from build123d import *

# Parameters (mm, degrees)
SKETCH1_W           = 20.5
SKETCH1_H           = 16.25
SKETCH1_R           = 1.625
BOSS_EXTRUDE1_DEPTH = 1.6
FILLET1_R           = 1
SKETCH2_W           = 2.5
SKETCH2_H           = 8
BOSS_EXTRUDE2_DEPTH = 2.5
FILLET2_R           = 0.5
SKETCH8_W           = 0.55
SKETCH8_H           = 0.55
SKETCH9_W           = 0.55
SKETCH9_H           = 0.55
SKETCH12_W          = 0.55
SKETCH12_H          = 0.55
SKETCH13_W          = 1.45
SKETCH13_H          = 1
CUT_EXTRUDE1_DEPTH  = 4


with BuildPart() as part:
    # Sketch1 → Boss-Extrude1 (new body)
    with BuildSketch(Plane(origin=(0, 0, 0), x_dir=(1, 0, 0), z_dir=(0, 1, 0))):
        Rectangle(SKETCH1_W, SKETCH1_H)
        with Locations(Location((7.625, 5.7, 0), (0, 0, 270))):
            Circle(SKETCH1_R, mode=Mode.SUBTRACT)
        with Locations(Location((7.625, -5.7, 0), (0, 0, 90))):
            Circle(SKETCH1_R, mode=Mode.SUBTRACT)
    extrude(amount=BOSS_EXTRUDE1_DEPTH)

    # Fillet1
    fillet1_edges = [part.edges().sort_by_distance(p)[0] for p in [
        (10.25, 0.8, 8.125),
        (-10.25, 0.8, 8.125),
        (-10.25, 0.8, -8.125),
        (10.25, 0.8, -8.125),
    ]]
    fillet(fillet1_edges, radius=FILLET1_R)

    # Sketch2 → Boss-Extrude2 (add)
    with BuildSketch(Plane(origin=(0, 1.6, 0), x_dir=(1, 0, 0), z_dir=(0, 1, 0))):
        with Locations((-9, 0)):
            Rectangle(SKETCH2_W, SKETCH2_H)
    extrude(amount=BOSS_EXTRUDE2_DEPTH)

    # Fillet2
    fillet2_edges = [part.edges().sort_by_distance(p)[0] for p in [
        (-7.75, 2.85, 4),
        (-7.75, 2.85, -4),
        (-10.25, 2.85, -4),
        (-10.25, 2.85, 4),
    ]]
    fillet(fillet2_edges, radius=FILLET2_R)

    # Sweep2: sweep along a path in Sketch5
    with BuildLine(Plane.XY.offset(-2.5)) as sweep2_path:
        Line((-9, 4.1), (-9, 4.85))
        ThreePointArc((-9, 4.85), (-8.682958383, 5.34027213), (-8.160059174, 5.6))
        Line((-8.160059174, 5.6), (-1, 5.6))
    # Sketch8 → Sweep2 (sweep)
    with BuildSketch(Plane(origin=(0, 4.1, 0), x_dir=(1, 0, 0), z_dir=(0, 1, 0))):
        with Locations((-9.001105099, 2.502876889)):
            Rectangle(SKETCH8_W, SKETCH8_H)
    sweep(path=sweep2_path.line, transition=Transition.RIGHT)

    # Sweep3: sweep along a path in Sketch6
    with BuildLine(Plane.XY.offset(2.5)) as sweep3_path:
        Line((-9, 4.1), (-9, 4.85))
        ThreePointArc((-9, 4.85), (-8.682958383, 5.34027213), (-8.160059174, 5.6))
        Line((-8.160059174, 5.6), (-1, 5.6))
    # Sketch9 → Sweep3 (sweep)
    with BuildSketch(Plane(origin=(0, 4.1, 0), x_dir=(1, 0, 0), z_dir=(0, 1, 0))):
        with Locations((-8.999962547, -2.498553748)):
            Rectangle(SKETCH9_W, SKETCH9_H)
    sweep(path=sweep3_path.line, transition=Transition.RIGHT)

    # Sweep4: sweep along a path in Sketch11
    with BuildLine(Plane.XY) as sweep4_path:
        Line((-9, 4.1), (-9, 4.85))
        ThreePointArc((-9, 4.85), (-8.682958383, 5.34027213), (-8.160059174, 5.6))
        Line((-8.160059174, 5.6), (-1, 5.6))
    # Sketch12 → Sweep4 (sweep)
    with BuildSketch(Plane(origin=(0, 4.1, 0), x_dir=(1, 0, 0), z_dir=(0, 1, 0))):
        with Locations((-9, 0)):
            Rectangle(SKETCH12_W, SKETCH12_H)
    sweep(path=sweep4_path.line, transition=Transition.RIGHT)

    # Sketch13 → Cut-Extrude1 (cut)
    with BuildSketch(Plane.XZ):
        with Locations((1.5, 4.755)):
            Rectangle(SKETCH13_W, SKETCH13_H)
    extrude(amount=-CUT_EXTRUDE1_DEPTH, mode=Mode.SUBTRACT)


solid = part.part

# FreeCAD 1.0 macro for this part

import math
import FreeCAD as App
import Part
import Sketcher

V = App.Vector


def edges_at(feature, points):
    """Names of the edges that pass closest to the given points."""
    edges = feature.Shape.Edges
    near = lambda p: min(range(len(edges)), key=lambda i: edges[i].distToShape(Part.Vertex(*p))[0])
    return sorted({f"Edge{near(p) + 1}" for p in points})


def add_polygon(sketch, points):
    """Adds a closed chain of lines whose ends are joined by coincident constraints."""
    first, n = sketch.GeometryCount, len(points)
    for a, b in zip(points, points[1:] + points[:1]):
        sketch.addGeometry(Part.LineSegment(App.Vector(*a, 0), App.Vector(*b, 0)), False)
    for i in range(n):
        sketch.addConstraint(Sketcher.Constraint("Coincident", first + i, 2, first + (i + 1) % n, 1))

doc = App.newDocument("Part")
body = doc.addObject("PartDesign::Body", "Body")

# Sketch on XZ plane
sketch1 = body.newObject("Sketcher::SketchObject", "Sketch")
sketch1.AttachmentSupport = (doc.getObject("XZ_Plane"), [""])
sketch1.MapMode = "FlatFace"
add_polygon(sketch1, [(-10.2, -8.1), (-10.2, 8.1), (10.2, 8.1), (10.2, -8.1)])  # lines 0-3
sketch1.addGeometry(Part.Circle(V(7.6, 5.7, 0), V(0, 0, 1), 1.6), False)  # 4
sketch1.addGeometry(Part.Circle(V(7.6, -5.7, 0), V(0, 0, 1), 1.6), False)  # 5
sketch1.addConstraint([
    Sketcher.Constraint("Vertical", 0),
    Sketcher.Constraint("Horizontal", 1),
    Sketcher.Constraint("Vertical", 2),
    Sketcher.Constraint("Horizontal", 3),
    Sketcher.Constraint("Equal", 4, 5),
    Sketcher.Constraint("Symmetric", 0, 2, 2, 2, -1, 1),
    Sketcher.Constraint("Symmetric", 4, 3, 5, 3, -1),
    Sketcher.Constraint("Diameter", 4, 3.25),
    Sketcher.Constraint("DistanceX", 1, 1, 1, 2, 20.5),
    Sketcher.Constraint("DistanceY", 0, 1, 0, 2, 16.25),
    Sketcher.Constraint("DistanceY", -1, 1, 4, 3, 5.7),
    Sketcher.Constraint("DistanceX", -1, 1, 4, 3, 7.625),
])
pad1 = body.newObject("PartDesign::Pad", "Pad")
pad1.Profile = sketch1
pad1.Length = 1.6
pad1.Reversed = True
doc.recompute()

fillet = body.newObject("PartDesign::Fillet", "Fillet")
fillet.Base = (pad1, edges_at(pad1, [
    (10.25, 0.8, 8.125),
    (-10.25, 0.8, 8.125),
    (-10.25, 0.8, -8.125),
    (10.25, 0.8, -8.125),
]))
fillet.Radius = 1

# Sketch on XZ plane
sketch2 = body.newObject("Sketcher::SketchObject", "Sketch001")
sketch2.AttachmentSupport = (doc.getObject("XZ_Plane"), [""])
sketch2.MapMode = "FlatFace"
sketch2.AttachmentOffset = App.Placement(V(0, 0, -1.6), App.Rotation())
add_polygon(sketch2, [(-10.2, -4), (-10.2, 4), (-7.8, 4), (-7.8, -4)])  # lines 0-3
sketch2.addConstraint([
    Sketcher.Constraint("Vertical", 0),
    Sketcher.Constraint("Horizontal", 1),
    Sketcher.Constraint("Vertical", 2),
    Sketcher.Constraint("Horizontal", 3),
    Sketcher.Constraint("DistanceY", 0, 1, 0, 2, 8.0),
    Sketcher.Constraint("DistanceX", 1, 1, 1, 2, 2.5),
    Sketcher.Constraint("DistanceY", -1, 1, 0, 2, 4.0),
    Sketcher.Constraint("DistanceX", 0, 2, -1, 1, 10.25),
])
pad2 = body.newObject("PartDesign::Pad", "Pad001")
pad2.Profile = sketch2
pad2.Length = 2.5
pad2.Reversed = True
doc.recompute()

fillet2 = body.newObject("PartDesign::Fillet", "Fillet001")
fillet2.Base = (pad2, edges_at(pad2, [
    (-7.75, 2.85, 4),
    (-7.75, 2.85, -4),
    (-10.25, 2.85, -4),
    (-10.25, 2.85, 4),
]))
fillet2.Radius = 0.5

# Sketch on XZ plane
sketch3 = body.newObject("Sketcher::SketchObject", "Sketch002")
sketch3.AttachmentSupport = (doc.getObject("XZ_Plane"), [""])
sketch3.MapMode = "FlatFace"
sketch3.AttachmentOffset = App.Placement(V(0, 0, -4.1), App.Rotation())
add_polygon(sketch3, [(-9.3, -2.8), (-9.3, -2.2), (-8.7, -2.2), (-8.7, -2.8)])  # lines 0-3
sketch3.addConstraint([
    Sketcher.Constraint("Vertical", 0),
    Sketcher.Constraint("Horizontal", 1),
    Sketcher.Constraint("Vertical", 2),
    Sketcher.Constraint("Horizontal", 3),
    Sketcher.Constraint("Equal", 3, 0),
    Sketcher.Constraint("DistanceX", 1, 1, 1, 2, 0.55),
    Sketcher.Constraint("DistanceX", 0, 2, -1, 1, 9.276105),
    Sketcher.Constraint("DistanceY", 0, 2, -1, 1, 2.227877),
])

# Sketch on XY plane
sketch4 = body.newObject("Sketcher::SketchObject", "Sketch003")
sketch4.AttachmentSupport = (doc.getObject("XY_Plane"), [""])
sketch4.MapMode = "FlatFace"
sketch4.AttachmentOffset = App.Placement(V(0, 0, -2.5), App.Rotation())
sketch4.addGeometry([
    Part.LineSegment(V(-9, 4.1, 0), V(-9, 4.8, 0)),
    Part.ArcOfCircle(Part.Circle(V(-7.9, 4.5, 0), V(0, 0, 1), 1.1), math.radians(101), math.radians(162)),
    Part.LineSegment(V(-8.2, 5.6, 0), V(-1, 5.6, 0)),
], False)
sketch4.addConstraint([
    Sketcher.Constraint("Coincident", 0, 2, 1, 2),
    Sketcher.Constraint("Coincident", 1, 1, 2, 1),
    Sketcher.Constraint("Vertical", 0),
    Sketcher.Constraint("Horizontal", 2),
    Sketcher.Constraint("DistanceX", 0, 1, -1, 1, 9.0),
    Sketcher.Constraint("DistanceX", 2, 2, -1, 1, 1.0),
    Sketcher.Constraint("DistanceY", 0, 1, 0, 2, 0.75),
    Sketcher.Constraint("DistanceY", -1, 1, 0, 1, 4.1),
    Sketcher.Constraint("DistanceY", -1, 1, 1, 1, 5.6),
    Sketcher.Constraint("Radius", 1, 1.102907),
    Sketcher.Constraint("DistanceX", 2, 1, 2, 2, 7.160059),
])
doc.recompute()

additivepipe = body.newObject("PartDesign::AdditivePipe", "AdditivePipe")
additivepipe.Profile = sketch3
additivepipe.Spine = (sketch4, ["Edge1", "Edge2", "Edge3"])
additivepipe.Transition = "Right corner"

# Sketch on XZ plane
sketch5 = body.newObject("Sketcher::SketchObject", "Sketch004")
sketch5.AttachmentSupport = (doc.getObject("XZ_Plane"), [""])
sketch5.MapMode = "FlatFace"
sketch5.AttachmentOffset = App.Placement(V(0, 0, -4.1), App.Rotation())
add_polygon(sketch5, [(-9.3, 2.2), (-9.3, 2.8), (-8.7, 2.8), (-8.7, 2.2)])  # lines 0-3
sketch5.addConstraint([
    Sketcher.Constraint("Vertical", 0),
    Sketcher.Constraint("Horizontal", 1),
    Sketcher.Constraint("Vertical", 2),
    Sketcher.Constraint("Horizontal", 3),
    Sketcher.Constraint("Equal", 3, 0),
    Sketcher.Constraint("DistanceX", 1, 1, 1, 2, 0.55),
    Sketcher.Constraint("DistanceX", 0, 2, -1, 1, 9.274963),
    Sketcher.Constraint("DistanceY", -1, 1, 0, 2, 2.773554),
])

# Sketch on XY plane
sketch6 = body.newObject("Sketcher::SketchObject", "Sketch005")
sketch6.AttachmentSupport = (doc.getObject("XY_Plane"), [""])
sketch6.MapMode = "FlatFace"
sketch6.AttachmentOffset = App.Placement(V(0, 0, 2.5), App.Rotation())
sketch6.addGeometry([
    Part.LineSegment(V(-9, 4.1, 0), V(-9, 4.8, 0)),
    Part.ArcOfCircle(Part.Circle(V(-7.9, 4.5, 0), V(0, 0, 1), 1.1), math.radians(101), math.radians(162)),
    Part.LineSegment(V(-8.2, 5.6, 0), V(-1, 5.6, 0)),
], False)
sketch6.addConstraint([
    Sketcher.Constraint("Coincident", 0, 2, 1, 2),
    Sketcher.Constraint("Coincident", 1, 1, 2, 1),
    Sketcher.Constraint("Vertical", 0),
    Sketcher.Constraint("Horizontal", 2),
    Sketcher.Constraint("DistanceX", 0, 1, -1, 1, 9.0),
    Sketcher.Constraint("DistanceX", 2, 2, -1, 1, 1.0),
    Sketcher.Constraint("DistanceY", 0, 1, 0, 2, 0.75),
    Sketcher.Constraint("DistanceY", -1, 1, 0, 1, 4.1),
    Sketcher.Constraint("DistanceY", -1, 1, 1, 1, 5.6),
    Sketcher.Constraint("Radius", 1, 1.102907),
    Sketcher.Constraint("DistanceX", 2, 1, 2, 2, 7.160059),
])
doc.recompute()

additivepipe2 = body.newObject("PartDesign::AdditivePipe", "AdditivePipe001")
additivepipe2.Profile = sketch5
additivepipe2.Spine = (sketch6, ["Edge1", "Edge2", "Edge3"])
additivepipe2.Transition = "Right corner"

# Sketch on XZ plane
sketch7 = body.newObject("Sketcher::SketchObject", "Sketch006")
sketch7.AttachmentSupport = (doc.getObject("XZ_Plane"), [""])
sketch7.MapMode = "FlatFace"
sketch7.AttachmentOffset = App.Placement(V(0, 0, -4.1), App.Rotation())
add_polygon(sketch7, [(-9.3, -0.3), (-9.3, 0.3), (-8.7, 0.3), (-8.7, -0.3)])  # lines 0-3
sketch7.addConstraint([
    Sketcher.Constraint("Vertical", 0),
    Sketcher.Constraint("Horizontal", 1),
    Sketcher.Constraint("Vertical", 2),
    Sketcher.Constraint("Horizontal", 3),
    Sketcher.Constraint("Equal", 3, 0),
    Sketcher.Constraint("DistanceX", 1, 1, 1, 2, 0.55),
    Sketcher.Constraint("DistanceX", 0, 2, -1, 1, 9.275),
    Sketcher.Constraint("DistanceY", -1, 1, 0, 2, 0.275),
])

# Sketch on XY plane
sketch8 = body.newObject("Sketcher::SketchObject", "Sketch007")
sketch8.AttachmentSupport = (doc.getObject("XY_Plane"), [""])
sketch8.MapMode = "FlatFace"
sketch8.addGeometry([
    Part.LineSegment(V(-9, 4.1, 0), V(-9, 4.8, 0)),
    Part.ArcOfCircle(Part.Circle(V(-7.9, 4.5, 0), V(0, 0, 1), 1.1), math.radians(101), math.radians(162)),
    Part.LineSegment(V(-8.2, 5.6, 0), V(-1, 5.6, 0)),
], False)
sketch8.addConstraint([
    Sketcher.Constraint("Coincident", 0, 2, 1, 2),
    Sketcher.Constraint("Coincident", 1, 1, 2, 1),
    Sketcher.Constraint("Vertical", 0),
    Sketcher.Constraint("Horizontal", 2),
    Sketcher.Constraint("DistanceX", 0, 1, -1, 1, 9.0),
    Sketcher.Constraint("DistanceX", 2, 2, -1, 1, 1.0),
    Sketcher.Constraint("DistanceY", 0, 1, 0, 2, 0.75),
    Sketcher.Constraint("DistanceY", -1, 1, 0, 1, 4.1),
    Sketcher.Constraint("DistanceY", -1, 1, 1, 1, 5.6),
    Sketcher.Constraint("Radius", 1, 1.102907),
    Sketcher.Constraint("DistanceX", 2, 1, 2, 2, 7.160059),
])
doc.recompute()

additivepipe3 = body.newObject("PartDesign::AdditivePipe", "AdditivePipe002")
additivepipe3.Profile = sketch7
additivepipe3.Spine = (sketch8, ["Edge1", "Edge2", "Edge3"])
additivepipe3.Transition = "Right corner"

# Sketch on XZ plane
sketch9 = body.newObject("Sketcher::SketchObject", "Sketch008")
sketch9.AttachmentSupport = (doc.getObject("XZ_Plane"), [""])
sketch9.MapMode = "FlatFace"
add_polygon(sketch9, [(0.8, 5.3), (0.8, 4.3), (2.2, 4.3), (2.2, 5.3)])  # lines 0-3
sketch9.addConstraint([
    Sketcher.Constraint("Vertical", 0),
    Sketcher.Constraint("Horizontal", 1),
    Sketcher.Constraint("Vertical", 2),
    Sketcher.Constraint("Horizontal", 3),
    Sketcher.Constraint("DistanceY", 0, 2, 0, 1, 1.0),
    Sketcher.Constraint("DistanceX", 1, 1, 1, 2, 1.45),
    Sketcher.Constraint("DistanceX", -1, 1, 0, 2, 0.775),
    Sketcher.Constraint("DistanceY", -1, 1, 0, 2, 4.255),
])
pocket1 = body.newObject("PartDesign::Pocket", "Pocket")
pocket1.Profile = sketch9
pocket1.Length = 4

doc.recompute()
